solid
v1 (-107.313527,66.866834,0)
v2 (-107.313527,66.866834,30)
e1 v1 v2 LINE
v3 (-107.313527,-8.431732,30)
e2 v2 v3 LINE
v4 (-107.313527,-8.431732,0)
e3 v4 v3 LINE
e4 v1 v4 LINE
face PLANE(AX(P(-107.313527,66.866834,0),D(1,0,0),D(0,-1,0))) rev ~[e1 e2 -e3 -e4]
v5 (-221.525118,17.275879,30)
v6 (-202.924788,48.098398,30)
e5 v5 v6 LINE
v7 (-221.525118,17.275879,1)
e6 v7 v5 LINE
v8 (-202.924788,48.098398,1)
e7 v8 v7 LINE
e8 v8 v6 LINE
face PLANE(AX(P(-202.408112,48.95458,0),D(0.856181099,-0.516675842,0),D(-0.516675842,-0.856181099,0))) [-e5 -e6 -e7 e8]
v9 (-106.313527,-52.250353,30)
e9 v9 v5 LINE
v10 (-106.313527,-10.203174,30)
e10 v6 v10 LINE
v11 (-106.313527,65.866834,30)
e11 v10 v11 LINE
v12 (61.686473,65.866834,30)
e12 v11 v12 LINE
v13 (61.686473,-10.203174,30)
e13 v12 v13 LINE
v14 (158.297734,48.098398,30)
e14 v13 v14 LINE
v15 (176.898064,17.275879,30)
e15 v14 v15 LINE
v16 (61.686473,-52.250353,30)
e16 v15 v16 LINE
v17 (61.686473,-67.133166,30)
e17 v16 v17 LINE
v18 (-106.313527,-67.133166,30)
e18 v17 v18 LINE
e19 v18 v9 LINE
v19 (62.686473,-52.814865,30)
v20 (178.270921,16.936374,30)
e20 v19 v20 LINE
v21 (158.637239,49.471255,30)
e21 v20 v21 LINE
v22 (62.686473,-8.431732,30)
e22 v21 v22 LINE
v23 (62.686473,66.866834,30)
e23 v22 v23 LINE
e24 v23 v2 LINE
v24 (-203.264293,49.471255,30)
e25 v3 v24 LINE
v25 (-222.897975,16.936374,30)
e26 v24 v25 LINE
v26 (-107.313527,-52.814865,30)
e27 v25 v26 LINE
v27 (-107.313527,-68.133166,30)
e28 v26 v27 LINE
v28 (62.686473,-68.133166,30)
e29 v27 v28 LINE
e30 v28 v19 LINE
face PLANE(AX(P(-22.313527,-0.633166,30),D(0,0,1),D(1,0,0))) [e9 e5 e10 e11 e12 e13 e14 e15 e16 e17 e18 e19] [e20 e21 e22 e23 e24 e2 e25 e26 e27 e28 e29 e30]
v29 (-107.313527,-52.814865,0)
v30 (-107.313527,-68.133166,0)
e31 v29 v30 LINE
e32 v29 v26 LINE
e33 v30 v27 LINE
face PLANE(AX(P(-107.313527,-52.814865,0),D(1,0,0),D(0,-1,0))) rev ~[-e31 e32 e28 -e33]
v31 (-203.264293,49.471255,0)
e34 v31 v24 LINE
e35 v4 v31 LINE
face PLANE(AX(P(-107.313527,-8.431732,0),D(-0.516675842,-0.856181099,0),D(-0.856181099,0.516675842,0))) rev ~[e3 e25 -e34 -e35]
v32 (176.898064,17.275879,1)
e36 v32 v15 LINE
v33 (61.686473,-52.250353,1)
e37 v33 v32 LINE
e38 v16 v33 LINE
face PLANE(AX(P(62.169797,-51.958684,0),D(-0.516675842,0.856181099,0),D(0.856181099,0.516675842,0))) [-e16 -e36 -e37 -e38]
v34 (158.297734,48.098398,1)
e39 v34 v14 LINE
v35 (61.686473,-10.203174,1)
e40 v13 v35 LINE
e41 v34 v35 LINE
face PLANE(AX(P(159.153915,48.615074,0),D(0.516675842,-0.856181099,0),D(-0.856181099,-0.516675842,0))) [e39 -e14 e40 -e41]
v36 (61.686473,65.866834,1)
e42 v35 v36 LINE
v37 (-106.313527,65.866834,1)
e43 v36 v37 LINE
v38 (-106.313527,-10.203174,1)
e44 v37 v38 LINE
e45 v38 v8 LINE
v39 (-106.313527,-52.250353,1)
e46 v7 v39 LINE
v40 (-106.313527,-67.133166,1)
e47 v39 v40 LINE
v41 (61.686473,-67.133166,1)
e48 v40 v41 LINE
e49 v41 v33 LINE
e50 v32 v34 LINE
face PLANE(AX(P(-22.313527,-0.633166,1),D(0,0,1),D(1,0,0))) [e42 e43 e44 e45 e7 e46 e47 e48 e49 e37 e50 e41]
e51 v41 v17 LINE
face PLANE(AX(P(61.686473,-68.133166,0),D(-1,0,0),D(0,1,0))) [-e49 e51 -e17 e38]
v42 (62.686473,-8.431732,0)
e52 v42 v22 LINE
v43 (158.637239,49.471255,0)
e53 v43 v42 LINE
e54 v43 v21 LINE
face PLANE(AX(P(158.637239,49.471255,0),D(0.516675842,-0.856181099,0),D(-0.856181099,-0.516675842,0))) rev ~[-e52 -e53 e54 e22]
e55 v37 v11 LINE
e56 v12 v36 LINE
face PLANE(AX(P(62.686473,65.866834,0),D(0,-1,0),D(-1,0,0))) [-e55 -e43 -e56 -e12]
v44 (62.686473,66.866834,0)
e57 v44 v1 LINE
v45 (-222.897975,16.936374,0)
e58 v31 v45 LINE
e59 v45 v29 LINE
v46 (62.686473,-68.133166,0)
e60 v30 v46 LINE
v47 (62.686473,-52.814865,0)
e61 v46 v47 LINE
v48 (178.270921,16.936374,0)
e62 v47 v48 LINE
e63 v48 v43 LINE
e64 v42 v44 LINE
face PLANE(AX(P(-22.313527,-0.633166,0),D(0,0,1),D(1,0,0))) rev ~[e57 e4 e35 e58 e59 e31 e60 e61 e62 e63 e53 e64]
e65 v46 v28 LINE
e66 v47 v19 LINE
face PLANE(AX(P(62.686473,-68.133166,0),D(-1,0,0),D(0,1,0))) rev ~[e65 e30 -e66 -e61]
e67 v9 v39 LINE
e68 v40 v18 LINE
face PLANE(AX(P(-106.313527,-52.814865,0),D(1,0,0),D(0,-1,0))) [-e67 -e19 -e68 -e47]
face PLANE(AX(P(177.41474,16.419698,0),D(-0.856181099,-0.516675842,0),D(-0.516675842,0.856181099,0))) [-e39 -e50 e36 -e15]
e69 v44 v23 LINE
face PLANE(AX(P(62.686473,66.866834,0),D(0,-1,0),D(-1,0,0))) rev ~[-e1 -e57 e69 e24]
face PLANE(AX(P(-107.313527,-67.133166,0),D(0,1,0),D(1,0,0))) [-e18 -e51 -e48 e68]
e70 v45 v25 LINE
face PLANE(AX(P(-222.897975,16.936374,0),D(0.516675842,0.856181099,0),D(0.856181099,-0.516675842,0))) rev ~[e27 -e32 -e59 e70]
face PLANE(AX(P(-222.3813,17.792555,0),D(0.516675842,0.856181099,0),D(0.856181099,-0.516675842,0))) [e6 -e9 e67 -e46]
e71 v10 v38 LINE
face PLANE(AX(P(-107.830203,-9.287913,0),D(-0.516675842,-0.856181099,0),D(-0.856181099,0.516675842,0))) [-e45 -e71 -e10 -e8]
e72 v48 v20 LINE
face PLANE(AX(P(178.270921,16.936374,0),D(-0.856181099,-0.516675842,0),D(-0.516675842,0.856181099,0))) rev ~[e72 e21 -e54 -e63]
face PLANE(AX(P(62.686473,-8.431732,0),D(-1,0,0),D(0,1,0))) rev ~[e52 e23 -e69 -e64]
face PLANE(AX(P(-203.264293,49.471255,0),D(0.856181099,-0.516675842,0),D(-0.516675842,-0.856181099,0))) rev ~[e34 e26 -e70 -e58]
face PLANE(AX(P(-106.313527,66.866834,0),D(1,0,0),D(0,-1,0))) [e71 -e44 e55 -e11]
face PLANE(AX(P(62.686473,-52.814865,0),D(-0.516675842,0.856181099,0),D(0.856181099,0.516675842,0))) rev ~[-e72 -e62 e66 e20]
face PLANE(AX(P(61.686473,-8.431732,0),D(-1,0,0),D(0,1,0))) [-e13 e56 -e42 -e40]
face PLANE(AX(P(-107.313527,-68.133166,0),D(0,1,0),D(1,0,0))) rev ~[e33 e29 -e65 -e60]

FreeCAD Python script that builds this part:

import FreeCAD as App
import Part
import Sketcher


def faces_at(feature, points):
    """Names of the faces that lie closest to the given points."""
    faces = feature.Shape.Faces
    near = lambda p: min(range(len(faces)), key=lambda i: faces[i].distToShape(Part.Vertex(*p))[0])
    return sorted({f"Face{near(p) + 1}" for p in points})

doc = App.newDocument("Part")
body = doc.addObject("PartDesign::Body", "Body")

# Sketch on XY plane
sketch1 = doc.addObject("Sketcher::SketchObject", "Sketch")
body.addObject(sketch1)
sketch1.AttachmentSupport = (doc.XY_Plane, [""])
sketch1.MapMode = "FlatFace"
sketch1.addGeometry([
    Part.LineSegment(App.Vector(62.686473, 66.866834, 0), App.Vector(-107.313527, 66.866834, 0)),  # 0
    Part.LineSegment(App.Vector(-107.313527, 66.866834, 0), App.Vector(-107.313527, -8.431732, 0)),  # 1
    Part.LineSegment(App.Vector(-107.313527, -8.431732, 0), App.Vector(-203.264293, 49.471255, 0)),  # 2
    Part.LineSegment(App.Vector(-203.264293, 49.471255, 0), App.Vector(-222.897975, 16.936374, 0)),  # 3
    Part.LineSegment(App.Vector(-222.897975, 16.936374, 0), App.Vector(-107.313527, -52.814865, 0)),  # 4
    Part.LineSegment(App.Vector(-107.313527, -52.814865, 0), App.Vector(-107.313527, -68.133166, 0)),  # 5
    Part.LineSegment(App.Vector(-107.313527, -68.133166, 0), App.Vector(62.686473, -68.133166, 0)),  # 6
    Part.LineSegment(App.Vector(62.686473, -68.133166, 0), App.Vector(62.686473, -52.814865, 0)),  # 7
    Part.LineSegment(App.Vector(62.686473, -52.814865, 0), App.Vector(178.270921, 16.936374, 0)),  # 8
    Part.LineSegment(App.Vector(178.270921, 16.936374, 0), App.Vector(158.637239, 49.471255, 0)),  # 9
    Part.LineSegment(App.Vector(158.637239, 49.471255, 0), App.Vector(62.686473, -8.431732, 0)),  # 10
    Part.LineSegment(App.Vector(62.686473, -8.431732, 0), App.Vector(62.686473, 66.866834, 0)),  # 11
], False)
sketch1.addConstraint([
    Sketcher.Constraint("Coincident", 0, 2, 1, 1),
    Sketcher.Constraint("Coincident", 1, 2, 2, 1),
    Sketcher.Constraint("Coincident", 2, 2, 3, 1),
    Sketcher.Constraint("Coincident", 3, 2, 4, 1),
    Sketcher.Constraint("Coincident", 4, 2, 5, 1),
    Sketcher.Constraint("Coincident", 5, 2, 6, 1),
    Sketcher.Constraint("Coincident", 6, 2, 7, 1),
    Sketcher.Constraint("Coincident", 7, 2, 8, 1),
    Sketcher.Constraint("Coincident", 8, 2, 9, 1),
    Sketcher.Constraint("Coincident", 9, 2, 10, 1),
    Sketcher.Constraint("Coincident", 10, 2, 11, 1),
    Sketcher.Constraint("Coincident", 11, 2, 0, 1),
    Sketcher.Constraint("Horizontal", 0),
    Sketcher.Constraint("Vertical", 1),
    Sketcher.Constraint("Vertical", 5),
    Sketcher.Constraint("Horizontal", 6),
    Sketcher.Constraint("Vertical", 7),
    Sketcher.Constraint("Vertical", 11),
    Sketcher.Constraint("Perpendicular", 2, 3),
    Sketcher.Constraint("Perpendicular", 3, 4),
    Sketcher.Constraint("Perpendicular", 8, 9),
    Sketcher.Constraint("Perpendicular", 9, 10),
    Sketcher.Constraint("Horizontal", 4, 2, 7, 2),
    Sketcher.Constraint("Horizontal", 3, 2, 8, 2),
    Sketcher.Constraint("Horizontal", 2, 2, 9, 2),
    Sketcher.Constraint("Horizontal", 1, 2, 10, 2),
    Sketcher.Constraint("Vertical", 1, 2, 4, 2),
    Sketcher.Constraint("Vertical", 7, 2, 10, 2),
    Sketcher.Constraint("DistanceX", 0, 2, 0, 1, 170.0),
    Sketcher.Constraint("Distance", 3, 38.0),
    Sketcher.Constraint("Distance", 4, 135.0),
    Sketcher.Constraint("DistanceY", 5, 2, 0, 2, 135.0),
    Sketcher.Constraint("DistanceY", 5, 2, 5, 1, 15.318301),
    Sketcher.Constraint("DistanceY", 1, 2, 1, 1, 75.298565),
    Sketcher.Constraint("DistanceY", 1, 2, -1, 1, 8.431732),
    Sketcher.Constraint("DistanceX", -1, 1, 8, 2, 178.270921),
])
pad1 = doc.addObject("PartDesign::Pad", "Pad")
body.addObject(pad1)
pad1.Profile = sketch1
pad1.Length = 30
doc.recompute()

thickness = doc.addObject("PartDesign::Thickness", "Thickness")
body.addObject(thickness)
thickness.Base = (pad1, faces_at(pad1, [(-22.314, -0.633, 30)]))
thickness.Value = 1
thickness.Reversed = True
thickness.Join = "Intersection"

doc.recompute()
